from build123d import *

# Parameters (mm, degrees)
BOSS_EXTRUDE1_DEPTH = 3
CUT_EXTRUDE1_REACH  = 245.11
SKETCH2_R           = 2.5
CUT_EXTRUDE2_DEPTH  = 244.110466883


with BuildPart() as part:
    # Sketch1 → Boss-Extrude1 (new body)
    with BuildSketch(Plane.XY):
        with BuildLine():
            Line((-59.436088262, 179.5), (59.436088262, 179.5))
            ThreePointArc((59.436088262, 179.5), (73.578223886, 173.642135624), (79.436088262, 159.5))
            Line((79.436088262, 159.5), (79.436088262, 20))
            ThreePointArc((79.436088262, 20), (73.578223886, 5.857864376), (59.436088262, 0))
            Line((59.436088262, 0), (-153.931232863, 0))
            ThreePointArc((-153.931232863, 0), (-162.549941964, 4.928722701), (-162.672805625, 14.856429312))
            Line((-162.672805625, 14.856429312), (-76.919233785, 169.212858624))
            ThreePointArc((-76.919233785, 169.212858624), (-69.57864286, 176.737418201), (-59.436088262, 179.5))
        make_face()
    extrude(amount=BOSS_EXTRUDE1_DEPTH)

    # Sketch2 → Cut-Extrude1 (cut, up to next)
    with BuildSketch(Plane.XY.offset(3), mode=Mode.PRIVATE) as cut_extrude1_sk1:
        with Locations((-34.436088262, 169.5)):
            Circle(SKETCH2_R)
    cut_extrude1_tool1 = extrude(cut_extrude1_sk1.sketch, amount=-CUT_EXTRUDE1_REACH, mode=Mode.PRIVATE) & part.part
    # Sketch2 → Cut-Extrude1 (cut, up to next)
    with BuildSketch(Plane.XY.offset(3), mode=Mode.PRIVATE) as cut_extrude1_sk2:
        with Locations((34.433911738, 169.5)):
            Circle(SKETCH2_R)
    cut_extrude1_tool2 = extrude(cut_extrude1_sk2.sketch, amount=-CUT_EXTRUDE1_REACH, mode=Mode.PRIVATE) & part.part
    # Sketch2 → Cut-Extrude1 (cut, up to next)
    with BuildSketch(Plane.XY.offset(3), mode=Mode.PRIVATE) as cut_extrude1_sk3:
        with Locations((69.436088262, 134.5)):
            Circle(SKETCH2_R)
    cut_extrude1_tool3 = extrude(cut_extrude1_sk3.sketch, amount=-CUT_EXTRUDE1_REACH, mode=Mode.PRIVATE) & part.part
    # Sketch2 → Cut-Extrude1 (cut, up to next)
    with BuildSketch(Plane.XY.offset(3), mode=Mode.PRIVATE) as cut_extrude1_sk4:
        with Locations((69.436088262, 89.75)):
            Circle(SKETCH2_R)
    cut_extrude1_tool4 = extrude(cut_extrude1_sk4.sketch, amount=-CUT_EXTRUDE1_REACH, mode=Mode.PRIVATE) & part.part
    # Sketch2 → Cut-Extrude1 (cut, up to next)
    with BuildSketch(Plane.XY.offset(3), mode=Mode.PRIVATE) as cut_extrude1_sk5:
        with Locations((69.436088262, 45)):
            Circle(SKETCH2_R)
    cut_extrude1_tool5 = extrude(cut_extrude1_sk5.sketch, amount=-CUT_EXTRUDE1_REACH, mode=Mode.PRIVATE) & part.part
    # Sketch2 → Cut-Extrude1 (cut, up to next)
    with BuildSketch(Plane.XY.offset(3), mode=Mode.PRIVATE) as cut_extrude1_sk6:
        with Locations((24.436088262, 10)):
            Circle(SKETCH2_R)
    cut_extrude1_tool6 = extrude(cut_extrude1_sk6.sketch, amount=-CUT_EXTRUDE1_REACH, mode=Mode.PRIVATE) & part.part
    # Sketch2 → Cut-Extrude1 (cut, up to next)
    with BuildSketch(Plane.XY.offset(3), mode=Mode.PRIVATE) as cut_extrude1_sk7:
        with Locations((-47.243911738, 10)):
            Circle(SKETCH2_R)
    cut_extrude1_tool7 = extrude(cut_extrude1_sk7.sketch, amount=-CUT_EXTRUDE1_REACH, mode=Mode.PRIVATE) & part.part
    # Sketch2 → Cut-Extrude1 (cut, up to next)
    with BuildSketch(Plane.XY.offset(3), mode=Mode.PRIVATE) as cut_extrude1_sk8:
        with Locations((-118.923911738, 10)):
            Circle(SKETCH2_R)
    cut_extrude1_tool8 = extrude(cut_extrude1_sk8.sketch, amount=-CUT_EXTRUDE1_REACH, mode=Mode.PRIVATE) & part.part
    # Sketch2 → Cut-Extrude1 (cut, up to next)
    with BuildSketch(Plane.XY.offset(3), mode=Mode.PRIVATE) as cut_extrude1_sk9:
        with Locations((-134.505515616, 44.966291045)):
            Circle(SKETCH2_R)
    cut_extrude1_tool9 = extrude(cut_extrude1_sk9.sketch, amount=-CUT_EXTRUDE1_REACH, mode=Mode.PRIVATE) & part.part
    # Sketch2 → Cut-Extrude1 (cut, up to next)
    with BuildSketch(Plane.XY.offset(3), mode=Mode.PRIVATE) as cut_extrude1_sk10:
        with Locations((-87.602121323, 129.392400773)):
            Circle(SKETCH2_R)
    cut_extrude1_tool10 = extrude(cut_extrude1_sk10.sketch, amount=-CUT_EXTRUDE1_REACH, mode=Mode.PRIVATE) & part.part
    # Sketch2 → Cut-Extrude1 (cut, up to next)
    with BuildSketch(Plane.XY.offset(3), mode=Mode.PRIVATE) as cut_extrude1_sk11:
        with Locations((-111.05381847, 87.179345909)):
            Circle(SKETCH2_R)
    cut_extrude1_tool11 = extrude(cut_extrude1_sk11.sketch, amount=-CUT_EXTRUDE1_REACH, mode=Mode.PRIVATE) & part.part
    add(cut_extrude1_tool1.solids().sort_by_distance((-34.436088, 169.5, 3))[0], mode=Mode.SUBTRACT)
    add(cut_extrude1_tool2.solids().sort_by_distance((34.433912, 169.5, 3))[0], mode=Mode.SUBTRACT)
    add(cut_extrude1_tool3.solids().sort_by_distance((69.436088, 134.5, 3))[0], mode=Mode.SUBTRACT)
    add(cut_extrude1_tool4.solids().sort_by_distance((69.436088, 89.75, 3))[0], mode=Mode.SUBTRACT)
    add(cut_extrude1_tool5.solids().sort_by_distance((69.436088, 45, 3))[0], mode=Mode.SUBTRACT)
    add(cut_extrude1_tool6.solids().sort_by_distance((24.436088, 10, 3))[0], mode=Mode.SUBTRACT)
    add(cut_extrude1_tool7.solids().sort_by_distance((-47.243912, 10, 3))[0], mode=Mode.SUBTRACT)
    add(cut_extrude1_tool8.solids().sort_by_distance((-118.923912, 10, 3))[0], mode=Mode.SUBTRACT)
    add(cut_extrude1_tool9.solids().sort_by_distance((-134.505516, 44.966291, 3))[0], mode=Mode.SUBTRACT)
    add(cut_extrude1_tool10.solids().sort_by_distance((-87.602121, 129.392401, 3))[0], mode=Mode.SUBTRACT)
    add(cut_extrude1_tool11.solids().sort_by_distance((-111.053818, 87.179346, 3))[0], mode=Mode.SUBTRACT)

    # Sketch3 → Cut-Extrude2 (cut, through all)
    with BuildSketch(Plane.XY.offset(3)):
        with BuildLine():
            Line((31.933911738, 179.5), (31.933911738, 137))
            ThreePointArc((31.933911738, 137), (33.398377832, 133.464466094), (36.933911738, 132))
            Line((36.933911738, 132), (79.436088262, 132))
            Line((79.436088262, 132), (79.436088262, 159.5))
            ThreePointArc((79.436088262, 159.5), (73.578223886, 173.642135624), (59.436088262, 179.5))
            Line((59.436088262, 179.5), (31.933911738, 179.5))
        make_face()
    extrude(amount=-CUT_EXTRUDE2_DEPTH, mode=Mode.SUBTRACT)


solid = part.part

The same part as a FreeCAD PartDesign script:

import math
import FreeCAD as App
import Part
import Sketcher

V = App.Vector

doc = App.newDocument("Part")
body = doc.addObject("PartDesign::Body", "Body")

# Sketch on XY plane
sketch1 = doc.addObject("Sketcher::SketchObject", "Sketch")
body.addObject(sketch1)
sketch1.AttachmentSupport = (doc.XY_Plane, [""])
sketch1.MapMode = "FlatFace"
sketch1.addGeometry(Part.LineSegment(V(59.436088, 179.5, 0), V(-59.436088, 179.5, 0)), False)
sketch1.addGeometry(Part.ArcOfCircle(Part.Circle(V(-59.436088, 159.5, 0), V(0, 0, 1), 20), math.radians(90), math.radians(150.945396)), False)
sketch1.addGeometry(Part.LineSegment(V(-76.919234, 169.212859, 0), V(-162.672806, 14.856429, 0)), False)
sketch1.addGeometry(Part.ArcOfCircle(Part.Circle(V(-153.931233, 10, 0), V(0, 0, 1), 10), math.radians(150.945396), math.radians(270)), False)
sketch1.addGeometry(Part.LineSegment(V(-153.931233, 0, 0), V(59.436088, 0, 0)), False)
sketch1.addGeometry(Part.ArcOfCircle(Part.Circle(V(59.436088, 20, 0), V(0, 0, 1), 20), math.radians(-90), math.radians(0)), False)
sketch1.addGeometry(Part.LineSegment(V(79.436088, 20, 0), V(79.436088, 159.5, 0)), False)
sketch1.addGeometry(Part.ArcOfCircle(Part.Circle(V(59.436088, 159.5, 0), V(0, 0, 1), 20), math.radians(0), math.radians(90)), False)
sketch1.addConstraint(Sketcher.Constraint("Tangent", 0, 2, 1, 1))
sketch1.addConstraint(Sketcher.Constraint("Tangent", 1, 2, 2, 1))
sketch1.addConstraint(Sketcher.Constraint("Tangent", 2, 2, 3, 1))
sketch1.addConstraint(Sketcher.Constraint("Tangent", 3, 2, 4, 1))
sketch1.addConstraint(Sketcher.Constraint("Tangent", 4, 2, 5, 1))
sketch1.addConstraint(Sketcher.Constraint("Tangent", 5, 2, 6, 1))
sketch1.addConstraint(Sketcher.Constraint("Tangent", 6, 2, 7, 1))
sketch1.addConstraint(Sketcher.Constraint("Tangent", 7, 2, 0, 1))
sketch1.addConstraint(Sketcher.Constraint("Horizontal", 0))
sketch1.addConstraint(Sketcher.Constraint("Horizontal", 4))
sketch1.addConstraint(Sketcher.Constraint("Vertical", 6))
sketch1.addConstraint(Sketcher.Constraint("Equal", 1, 5))
sketch1.addConstraint(Sketcher.Constraint("Equal", 5, 7))
sketch1.addConstraint(Sketcher.Constraint("PointOnObject", 3, 2, -1))
sketch1.addConstraint(Sketcher.Constraint("Radius", 1, 20.0))
sketch1.addConstraint(Sketcher.Constraint("Radius", 3, 10.0))
sketch1.addConstraint(Sketcher.Constraint("DistanceY", 6, 1, 6, 2, 139.5))
sketch1.addConstraint(Sketcher.Constraint("DistanceX", 3, 3, 1, 2, 77.011999))
sketch1.addConstraint(Sketcher.Constraint("DistanceX", 4, 1, 4, 2, 213.367321))
sketch1.addConstraint(Sketcher.Constraint("DistanceX", 1, 3, -1, 1, 59.436088))
pad1 = doc.addObject("PartDesign::Pad", "Pad")
body.addObject(pad1)
pad1.Profile = sketch1
pad1.Length = 3

# Sketch on XY plane
sketch2 = doc.addObject("Sketcher::SketchObject", "Sketch001")
body.addObject(sketch2)
sketch2.AttachmentSupport = (doc.XY_Plane, [""])
sketch2.MapMode = "FlatFace"
sketch2.AttachmentOffset = App.Placement(V(0, 0, 3), App.Rotation())
sketch2.addGeometry(Part.Circle(V(-34.436088, 169.5, 0), V(0, 0, 1), 2.5), False)
sketch2.addConstraint(Sketcher.Constraint("Diameter", 0, 5.0))
sketch2.addConstraint(Sketcher.Constraint("DistanceY", -1, 1, 0, 3, 169.5))
sketch2.addConstraint(Sketcher.Constraint("DistanceX", 0, 3, -1, 1, 34.436088))
pocket1 = doc.addObject("PartDesign::Pocket", "Pocket")
body.addObject(pocket1)
pocket1.Profile = sketch2
pocket1.Type = "UpToFirst"

# Sketch on XY plane
sketch3 = doc.addObject("Sketcher::SketchObject", "Sketch002")
body.addObject(sketch3)
sketch3.AttachmentSupport = (doc.XY_Plane, [""])
sketch3.MapMode = "FlatFace"
sketch3.AttachmentOffset = App.Placement(V(0, 0, 3), App.Rotation())
sketch3.addGeometry(Part.Circle(V(34.433912, 169.5, 0), V(0, 0, 1), 2.5), False)
sketch3.addConstraint(Sketcher.Constraint("Diameter", 0, 5.0))
sketch3.addConstraint(Sketcher.Constraint("DistanceY", -1, 1, 0, 3, 169.5))
sketch3.addConstraint(Sketcher.Constraint("DistanceX", -1, 1, 0, 3, 34.433912))
pocket2 = doc.addObject("PartDesign::Pocket", "Pocket001")
body.addObject(pocket2)
pocket2.Profile = sketch3
pocket2.Type = "UpToFirst"

# Sketch on XY plane
sketch4 = doc.addObject("Sketcher::SketchObject", "Sketch003")
body.addObject(sketch4)
sketch4.AttachmentSupport = (doc.XY_Plane, [""])
sketch4.MapMode = "FlatFace"
sketch4.AttachmentOffset = App.Placement(V(0, 0, 3), App.Rotation())
sketch4.addGeometry(Part.Circle(V(69.436088, 134.5, 0), V(0, 0, 1), 2.5), False)
sketch4.addConstraint(Sketcher.Constraint("Diameter", 0, 5.0))
sketch4.addConstraint(Sketcher.Constraint("DistanceY", -1, 1, 0, 3, 134.5))
sketch4.addConstraint(Sketcher.Constraint("DistanceX", -1, 1, 0, 3, 69.436088))
pocket3 = doc.addObject("PartDesign::Pocket", "Pocket002")
body.addObject(pocket3)
pocket3.Profile = sketch4
pocket3.Type = "UpToFirst"

# Sketch on XY plane
sketch5 = doc.addObject("Sketcher::SketchObject", "Sketch004")
body.addObject(sketch5)
sketch5.AttachmentSupport = (doc.XY_Plane, [""])
sketch5.MapMode = "FlatFace"
sketch5.AttachmentOffset = App.Placement(V(0, 0, 3), App.Rotation())
sketch5.addGeometry(Part.Circle(V(69.436088, 89.75, 0), V(0, 0, 1), 2.5), False)
sketch5.addConstraint(Sketcher.Constraint("Diameter", 0, 5.0))
sketch5.addConstraint(Sketcher.Constraint("DistanceY", -1, 1, 0, 3, 89.75))
sketch5.addConstraint(Sketcher.Constraint("DistanceX", -1, 1, 0, 3, 69.436088))
pocket4 = doc.addObject("PartDesign::Pocket", "Pocket003")
body.addObject(pocket4)
pocket4.Profile = sketch5
pocket4.Type = "UpToFirst"

# Sketch on XY plane
sketch6 = doc.addObject("Sketcher::SketchObject", "Sketch005")
body.addObject(sketch6)
sketch6.AttachmentSupport = (doc.XY_Plane, [""])
sketch6.MapMode = "FlatFace"
sketch6.AttachmentOffset = App.Placement(V(0, 0, 3), App.Rotation())
sketch6.addGeometry(Part.Circle(V(69.436088, 45, 0), V(0, 0, 1), 2.5), False)
sketch6.addConstraint(Sketcher.Constraint("Diameter", 0, 5.0))
sketch6.addConstraint(Sketcher.Constraint("DistanceY", -1, 1, 0, 3, 45.0))
sketch6.addConstraint(Sketcher.Constraint("DistanceX", -1, 1, 0, 3, 69.436088))
pocket5 = doc.addObject("PartDesign::Pocket", "Pocket004")
body.addObject(pocket5)
pocket5.Profile = sketch6
pocket5.Type = "UpToFirst"

# Sketch on XY plane
sketch7 = doc.addObject("Sketcher::SketchObject", "Sketch006")
body.addObject(sketch7)
sketch7.AttachmentSupport = (doc.XY_Plane, [""])
sketch7.MapMode = "FlatFace"
sketch7.AttachmentOffset = App.Placement(V(0, 0, 3), App.Rotation())
sketch7.addGeometry(Part.Circle(V(24.436088, 10, 0), V(0, 0, 1), 2.5), False)
sketch7.addConstraint(Sketcher.Constraint("Diameter", 0, 5.0))
sketch7.addConstraint(Sketcher.Constraint("DistanceY", -1, 1, 0, 3, 10.0))
sketch7.addConstraint(Sketcher.Constraint("DistanceX", -1, 1, 0, 3, 24.436088))
pocket6 = doc.addObject("PartDesign::Pocket", "Pocket005")
body.addObject(pocket6)
pocket6.Profile = sketch7
pocket6.Type = "UpToFirst"

# Sketch on XY plane
sketch8 = doc.addObject("Sketcher::SketchObject", "Sketch007")
body.addObject(sketch8)
sketch8.AttachmentSupport = (doc.XY_Plane, [""])
sketch8.MapMode = "FlatFace"
sketch8.AttachmentOffset = App.Placement(V(0, 0, 3), App.Rotation())
sketch8.addGeometry(Part.Circle(V(-47.243912, 10, 0), V(0, 0, 1), 2.5), False)
sketch8.addConstraint(Sketcher.Constraint("Diameter", 0, 5.0))
sketch8.addConstraint(Sketcher.Constraint("DistanceY", -1, 1, 0, 3, 10.0))
sketch8.addConstraint(Sketcher.Constraint("DistanceX", 0, 3, -1, 1, 47.243912))
pocket7 = doc.addObject("PartDesign::Pocket", "Pocket006")
body.addObject(pocket7)
pocket7.Profile = sketch8
pocket7.Type = "UpToFirst"

# Sketch on XY plane
sketch9 = doc.addObject("Sketcher::SketchObject", "Sketch008")
body.addObject(sketch9)
sketch9.AttachmentSupport = (doc.XY_Plane, [""])
sketch9.MapMode = "FlatFace"
sketch9.AttachmentOffset = App.Placement(V(0, 0, 3), App.Rotation())
sketch9.addGeometry(Part.Circle(V(-118.923912, 10, 0), V(0, 0, 1), 2.5), False)
sketch9.addConstraint(Sketcher.Constraint("Diameter", 0, 5.0))
sketch9.addConstraint(Sketcher.Constraint("DistanceY", -1, 1, 0, 3, 10.0))
sketch9.addConstraint(Sketcher.Constraint("DistanceX", 0, 3, -1, 1, 118.923912))
pocket8 = doc.addObject("PartDesign::Pocket", "Pocket007")
body.addObject(pocket8)
pocket8.Profile = sketch9
pocket8.Type = "UpToFirst"

# Sketch on XY plane
sketch10 = doc.addObject("Sketcher::SketchObject", "Sketch009")
body.addObject(sketch10)
sketch10.AttachmentSupport = (doc.XY_Plane, [""])
sketch10.MapMode = "FlatFace"
sketch10.AttachmentOffset = App.Placement(V(0, 0, 3), App.Rotation())
sketch10.addGeometry(Part.Circle(V(-134.505516, 44.966291, 0), V(0, 0, 1), 2.5), False)
sketch10.addConstraint(Sketcher.Constraint("Diameter", 0, 5.0))
sketch10.addConstraint(Sketcher.Constraint("DistanceY", -1, 1, 0, 3, 44.966291))
sketch10.addConstraint(Sketcher.Constraint("DistanceX", 0, 3, -1, 1, 134.505516))
pocket9 = doc.addObject("PartDesign::Pocket", "Pocket008")
body.addObject(pocket9)
pocket9.Profile = sketch10
pocket9.Type = "UpToFirst"

# Sketch on XY plane
sketch11 = doc.addObject("Sketcher::SketchObject", "Sketch010")
body.addObject(sketch11)
sketch11.AttachmentSupport = (doc.XY_Plane, [""])
sketch11.MapMode = "FlatFace"
sketch11.AttachmentOffset = App.Placement(V(0, 0, 3), App.Rotation())
sketch11.addGeometry(Part.Circle(V(-87.602121, 129.392401, 0), V(0, 0, 1), 2.5), False)
sketch11.addConstraint(Sketcher.Constraint("Diameter", 0, 5.0))
sketch11.addConstraint(Sketcher.Constraint("DistanceY", -1, 1, 0, 3, 129.392401))
sketch11.addConstraint(Sketcher.Constraint("DistanceX", 0, 3, -1, 1, 87.602121))
pocket10 = doc.addObject("PartDesign::Pocket", "Pocket009")
body.addObject(pocket10)
pocket10.Profile = sketch11
pocket10.Type = "UpToFirst"

# Sketch on XY plane
sketch12 = doc.addObject("Sketcher::SketchObject", "Sketch011")
body.addObject(sketch12)
sketch12.AttachmentSupport = (doc.XY_Plane, [""])
sketch12.MapMode = "FlatFace"
sketch12.AttachmentOffset = App.Placement(V(0, 0, 3), App.Rotation())
sketch12.addGeometry(Part.Circle(V(-111.053818, 87.179346, 0), V(0, 0, 1), 2.5), False)
sketch12.addConstraint(Sketcher.Constraint("Diameter", 0, 5.0))
sketch12.addConstraint(Sketcher.Constraint("DistanceX", 0, 3, -1, 1, 111.053818))
sketch12.addConstraint(Sketcher.Constraint("DistanceY", -1, 1, 0, 3, 87.179346))
pocket11 = doc.addObject("PartDesign::Pocket", "Pocket010")
body.addObject(pocket11)
pocket11.Profile = sketch12
pocket11.Type = "UpToFirst"

# Sketch on XY plane
sketch13 = doc.addObject("Sketcher::SketchObject", "Sketch012")
body.addObject(sketch13)
sketch13.AttachmentSupport = (doc.XY_Plane, [""])
sketch13.MapMode = "FlatFace"
sketch13.AttachmentOffset = App.Placement(V(0, 0, 3), App.Rotation())
sketch13.addGeometry(Part.LineSegment(V(31.933912, 179.5, 0), V(31.933912, 137, 0)), False)
sketch13.addGeometry(Part.ArcOfCircle(Part.Circle(V(36.933912, 137, 0), V(0, 0, 1), 5), math.radians(180), math.radians(270)), False)
sketch13.addGeometry(Part.LineSegment(V(36.933912, 132, 0), V(79.436088, 132, 0)), False)
sketch13.addGeometry(Part.LineSegment(V(79.436088, 132, 0), V(79.436088, 159.5, 0)), False)
sketch13.addGeometry(Part.ArcOfCircle(Part.Circle(V(59.436088, 159.5, 0), V(0, 0, 1), 20), math.radians(0), math.radians(90)), False)
sketch13.addGeometry(Part.LineSegment(V(59.436088, 179.5, 0), V(31.933912, 179.5, 0)), False)
sketch13.addConstraint(Sketcher.Constraint("Tangent", 0, 2, 1, 1))
sketch13.addConstraint(Sketcher.Constraint("Tangent", 1, 2, 2, 1))
sketch13.addConstraint(Sketcher.Constraint("Coincident", 2, 2, 3, 1))
sketch13.addConstraint(Sketcher.Constraint("Tangent", 3, 2, 4, 1))
sketch13.addConstraint(Sketcher.Constraint("Tangent", 4, 2, 5, 1))
sketch13.addConstraint(Sketcher.Constraint("Coincident", 5, 2, 0, 1))
sketch13.addConstraint(Sketcher.Constraint("Vertical", 0))
sketch13.addConstraint(Sketcher.Constraint("Horizontal", 2))
sketch13.addConstraint(Sketcher.Constraint("Vertical", 3))
sketch13.addConstraint(Sketcher.Constraint("Horizontal", 5))
sketch13.addConstraint(Sketcher.Constraint("Radius", 1, 5.0))
sketch13.addConstraint(Sketcher.Constraint("Radius", 4, 20.0))
sketch13.addConstraint(Sketcher.Constraint("DistanceY", 0, 2, 0, 1, 42.5))
sketch13.addConstraint(Sketcher.Constraint("DistanceY", -1, 1, 1, 3, 137.0))
sketch13.addConstraint(Sketcher.Constraint("DistanceX", 2, 1, 2, 2, 42.502177))
sketch13.addConstraint(Sketcher.Constraint("DistanceX", -1, 1, 1, 3, 36.933912))
pocket12 = doc.addObject("PartDesign::Pocket", "Pocket011")
body.addObject(pocket12)
pocket12.Profile = sketch13
pocket12.Type = "ThroughAll"

doc.recompute()
